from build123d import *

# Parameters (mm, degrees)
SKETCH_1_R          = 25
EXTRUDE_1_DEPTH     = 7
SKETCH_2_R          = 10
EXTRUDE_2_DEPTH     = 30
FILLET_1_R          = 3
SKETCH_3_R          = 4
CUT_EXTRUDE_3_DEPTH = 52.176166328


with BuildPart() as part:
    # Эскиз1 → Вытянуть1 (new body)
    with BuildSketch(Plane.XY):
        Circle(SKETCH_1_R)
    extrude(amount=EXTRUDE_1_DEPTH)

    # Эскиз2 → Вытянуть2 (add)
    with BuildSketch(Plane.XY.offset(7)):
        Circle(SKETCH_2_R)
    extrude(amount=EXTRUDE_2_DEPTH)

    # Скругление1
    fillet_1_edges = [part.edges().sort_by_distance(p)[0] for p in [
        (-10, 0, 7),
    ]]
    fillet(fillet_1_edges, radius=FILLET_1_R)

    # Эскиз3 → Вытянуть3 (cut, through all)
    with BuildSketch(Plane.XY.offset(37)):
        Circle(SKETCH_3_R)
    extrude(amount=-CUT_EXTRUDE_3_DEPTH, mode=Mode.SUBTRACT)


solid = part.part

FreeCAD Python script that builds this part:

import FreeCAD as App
import Part
import Sketcher
from FreeCAD import Vector
Q = App.Units.Quantity


def edges_at(feature, points):
    """Names of the edges that pass closest to the given points."""
    edges = feature.Shape.Edges
    near = lambda p: min(range(len(edges)), key=lambda i: edges[i].distToShape(Part.Vertex(*p))[0])
    return sorted({f"Edge{near(p) + 1}" for p in points})

doc = App.newDocument("Part")
params = doc.addObject("Spreadsheet::Sheet", "Params")
for row, (alias, value) in enumerate([
    ("sketch1_diameter", "50 mm"),
    ("pad1_length", "7 mm"),
    ("sketch2_diameter", "20 mm"),
    ("pad2_length", "30 mm"),
    ("fillet_radius", "3 mm"),
    ("sketch3_diameter", "8 mm"),
], start=1):
    params.set(f"A{row}", alias)
    params.set(f"B{row}", "=" + value)
    params.setAlias(f"B{row}", alias)

body = doc.addObject("PartDesign::Body", "Body")

# Sketch on XY plane
sketch1 = body.newObject("Sketcher::SketchObject", "Sketch")
sketch1.AttachmentSupport = (doc.getObject("XY_Plane"), [""])
sketch1.MapMode = "FlatFace"
sketch1.addGeometry(Part.Circle(Vector(0, 0, 0), Vector(0, 0, 1), 25), False)
sketch1.addConstraint(Sketcher.Constraint("Coincident", 0, 3, -1, 1))
sketch1.addConstraint(Sketcher.Constraint("Diameter", 0, Q("50 mm")))
sketch1.setExpression("Constraints[1]", "Params.sketch1_diameter")
pad1 = body.newObject("PartDesign::Pad", "Pad")
pad1.Profile = sketch1
pad1.setExpression("Length", "Params.pad1_length")

# Sketch on XY plane
sketch2 = body.newObject("Sketcher::SketchObject", "Sketch001")
sketch2.AttachmentSupport = (doc.getObject("XY_Plane"), [""])
sketch2.MapMode = "FlatFace"
sketch2.AttachmentOffset = App.Placement(Vector(0, 0, 7), App.Rotation())
sketch2.addGeometry(Part.Circle(Vector(0, 0, 0), Vector(0, 0, 1), 10), False)
sketch2.addConstraint(Sketcher.Constraint("Coincident", 0, 3, -1, 1))
sketch2.addConstraint(Sketcher.Constraint("Diameter", 0, Q("20 mm")))
sketch2.setExpression("Constraints[1]", "Params.sketch2_diameter")
pad2 = body.newObject("PartDesign::Pad", "Pad001")
pad2.Profile = sketch2
pad2.setExpression("Length", "Params.pad2_length")
doc.recompute()

fillet = body.newObject("PartDesign::Fillet", "Fillet")
fillet.Base = (pad2, edges_at(pad2, [(-10, 0, 7)]))
fillet.setExpression("Radius", "Params.fillet_radius")

# Sketch on XY plane
sketch3 = body.newObject("Sketcher::SketchObject", "Sketch002")
sketch3.AttachmentSupport = (doc.getObject("XY_Plane"), [""])
sketch3.MapMode = "FlatFace"
sketch3.AttachmentOffset = App.Placement(Vector(0, 0, 37), App.Rotation())
sketch3.addGeometry(Part.Circle(Vector(0, 0, 0), Vector(0, 0, 1), 4), False)
sketch3.addConstraint(Sketcher.Constraint("Coincident", 0, 3, -1, 1))
sketch3.addConstraint(Sketcher.Constraint("Diameter", 0, Q("8 mm")))
sketch3.setExpression("Constraints[1]", "Params.sketch3_diameter")
pocket1 = body.newObject("PartDesign::Pocket", "Pocket")
pocket1.Profile = sketch3
pocket1.Type = "ThroughAll"

doc.recompute()
